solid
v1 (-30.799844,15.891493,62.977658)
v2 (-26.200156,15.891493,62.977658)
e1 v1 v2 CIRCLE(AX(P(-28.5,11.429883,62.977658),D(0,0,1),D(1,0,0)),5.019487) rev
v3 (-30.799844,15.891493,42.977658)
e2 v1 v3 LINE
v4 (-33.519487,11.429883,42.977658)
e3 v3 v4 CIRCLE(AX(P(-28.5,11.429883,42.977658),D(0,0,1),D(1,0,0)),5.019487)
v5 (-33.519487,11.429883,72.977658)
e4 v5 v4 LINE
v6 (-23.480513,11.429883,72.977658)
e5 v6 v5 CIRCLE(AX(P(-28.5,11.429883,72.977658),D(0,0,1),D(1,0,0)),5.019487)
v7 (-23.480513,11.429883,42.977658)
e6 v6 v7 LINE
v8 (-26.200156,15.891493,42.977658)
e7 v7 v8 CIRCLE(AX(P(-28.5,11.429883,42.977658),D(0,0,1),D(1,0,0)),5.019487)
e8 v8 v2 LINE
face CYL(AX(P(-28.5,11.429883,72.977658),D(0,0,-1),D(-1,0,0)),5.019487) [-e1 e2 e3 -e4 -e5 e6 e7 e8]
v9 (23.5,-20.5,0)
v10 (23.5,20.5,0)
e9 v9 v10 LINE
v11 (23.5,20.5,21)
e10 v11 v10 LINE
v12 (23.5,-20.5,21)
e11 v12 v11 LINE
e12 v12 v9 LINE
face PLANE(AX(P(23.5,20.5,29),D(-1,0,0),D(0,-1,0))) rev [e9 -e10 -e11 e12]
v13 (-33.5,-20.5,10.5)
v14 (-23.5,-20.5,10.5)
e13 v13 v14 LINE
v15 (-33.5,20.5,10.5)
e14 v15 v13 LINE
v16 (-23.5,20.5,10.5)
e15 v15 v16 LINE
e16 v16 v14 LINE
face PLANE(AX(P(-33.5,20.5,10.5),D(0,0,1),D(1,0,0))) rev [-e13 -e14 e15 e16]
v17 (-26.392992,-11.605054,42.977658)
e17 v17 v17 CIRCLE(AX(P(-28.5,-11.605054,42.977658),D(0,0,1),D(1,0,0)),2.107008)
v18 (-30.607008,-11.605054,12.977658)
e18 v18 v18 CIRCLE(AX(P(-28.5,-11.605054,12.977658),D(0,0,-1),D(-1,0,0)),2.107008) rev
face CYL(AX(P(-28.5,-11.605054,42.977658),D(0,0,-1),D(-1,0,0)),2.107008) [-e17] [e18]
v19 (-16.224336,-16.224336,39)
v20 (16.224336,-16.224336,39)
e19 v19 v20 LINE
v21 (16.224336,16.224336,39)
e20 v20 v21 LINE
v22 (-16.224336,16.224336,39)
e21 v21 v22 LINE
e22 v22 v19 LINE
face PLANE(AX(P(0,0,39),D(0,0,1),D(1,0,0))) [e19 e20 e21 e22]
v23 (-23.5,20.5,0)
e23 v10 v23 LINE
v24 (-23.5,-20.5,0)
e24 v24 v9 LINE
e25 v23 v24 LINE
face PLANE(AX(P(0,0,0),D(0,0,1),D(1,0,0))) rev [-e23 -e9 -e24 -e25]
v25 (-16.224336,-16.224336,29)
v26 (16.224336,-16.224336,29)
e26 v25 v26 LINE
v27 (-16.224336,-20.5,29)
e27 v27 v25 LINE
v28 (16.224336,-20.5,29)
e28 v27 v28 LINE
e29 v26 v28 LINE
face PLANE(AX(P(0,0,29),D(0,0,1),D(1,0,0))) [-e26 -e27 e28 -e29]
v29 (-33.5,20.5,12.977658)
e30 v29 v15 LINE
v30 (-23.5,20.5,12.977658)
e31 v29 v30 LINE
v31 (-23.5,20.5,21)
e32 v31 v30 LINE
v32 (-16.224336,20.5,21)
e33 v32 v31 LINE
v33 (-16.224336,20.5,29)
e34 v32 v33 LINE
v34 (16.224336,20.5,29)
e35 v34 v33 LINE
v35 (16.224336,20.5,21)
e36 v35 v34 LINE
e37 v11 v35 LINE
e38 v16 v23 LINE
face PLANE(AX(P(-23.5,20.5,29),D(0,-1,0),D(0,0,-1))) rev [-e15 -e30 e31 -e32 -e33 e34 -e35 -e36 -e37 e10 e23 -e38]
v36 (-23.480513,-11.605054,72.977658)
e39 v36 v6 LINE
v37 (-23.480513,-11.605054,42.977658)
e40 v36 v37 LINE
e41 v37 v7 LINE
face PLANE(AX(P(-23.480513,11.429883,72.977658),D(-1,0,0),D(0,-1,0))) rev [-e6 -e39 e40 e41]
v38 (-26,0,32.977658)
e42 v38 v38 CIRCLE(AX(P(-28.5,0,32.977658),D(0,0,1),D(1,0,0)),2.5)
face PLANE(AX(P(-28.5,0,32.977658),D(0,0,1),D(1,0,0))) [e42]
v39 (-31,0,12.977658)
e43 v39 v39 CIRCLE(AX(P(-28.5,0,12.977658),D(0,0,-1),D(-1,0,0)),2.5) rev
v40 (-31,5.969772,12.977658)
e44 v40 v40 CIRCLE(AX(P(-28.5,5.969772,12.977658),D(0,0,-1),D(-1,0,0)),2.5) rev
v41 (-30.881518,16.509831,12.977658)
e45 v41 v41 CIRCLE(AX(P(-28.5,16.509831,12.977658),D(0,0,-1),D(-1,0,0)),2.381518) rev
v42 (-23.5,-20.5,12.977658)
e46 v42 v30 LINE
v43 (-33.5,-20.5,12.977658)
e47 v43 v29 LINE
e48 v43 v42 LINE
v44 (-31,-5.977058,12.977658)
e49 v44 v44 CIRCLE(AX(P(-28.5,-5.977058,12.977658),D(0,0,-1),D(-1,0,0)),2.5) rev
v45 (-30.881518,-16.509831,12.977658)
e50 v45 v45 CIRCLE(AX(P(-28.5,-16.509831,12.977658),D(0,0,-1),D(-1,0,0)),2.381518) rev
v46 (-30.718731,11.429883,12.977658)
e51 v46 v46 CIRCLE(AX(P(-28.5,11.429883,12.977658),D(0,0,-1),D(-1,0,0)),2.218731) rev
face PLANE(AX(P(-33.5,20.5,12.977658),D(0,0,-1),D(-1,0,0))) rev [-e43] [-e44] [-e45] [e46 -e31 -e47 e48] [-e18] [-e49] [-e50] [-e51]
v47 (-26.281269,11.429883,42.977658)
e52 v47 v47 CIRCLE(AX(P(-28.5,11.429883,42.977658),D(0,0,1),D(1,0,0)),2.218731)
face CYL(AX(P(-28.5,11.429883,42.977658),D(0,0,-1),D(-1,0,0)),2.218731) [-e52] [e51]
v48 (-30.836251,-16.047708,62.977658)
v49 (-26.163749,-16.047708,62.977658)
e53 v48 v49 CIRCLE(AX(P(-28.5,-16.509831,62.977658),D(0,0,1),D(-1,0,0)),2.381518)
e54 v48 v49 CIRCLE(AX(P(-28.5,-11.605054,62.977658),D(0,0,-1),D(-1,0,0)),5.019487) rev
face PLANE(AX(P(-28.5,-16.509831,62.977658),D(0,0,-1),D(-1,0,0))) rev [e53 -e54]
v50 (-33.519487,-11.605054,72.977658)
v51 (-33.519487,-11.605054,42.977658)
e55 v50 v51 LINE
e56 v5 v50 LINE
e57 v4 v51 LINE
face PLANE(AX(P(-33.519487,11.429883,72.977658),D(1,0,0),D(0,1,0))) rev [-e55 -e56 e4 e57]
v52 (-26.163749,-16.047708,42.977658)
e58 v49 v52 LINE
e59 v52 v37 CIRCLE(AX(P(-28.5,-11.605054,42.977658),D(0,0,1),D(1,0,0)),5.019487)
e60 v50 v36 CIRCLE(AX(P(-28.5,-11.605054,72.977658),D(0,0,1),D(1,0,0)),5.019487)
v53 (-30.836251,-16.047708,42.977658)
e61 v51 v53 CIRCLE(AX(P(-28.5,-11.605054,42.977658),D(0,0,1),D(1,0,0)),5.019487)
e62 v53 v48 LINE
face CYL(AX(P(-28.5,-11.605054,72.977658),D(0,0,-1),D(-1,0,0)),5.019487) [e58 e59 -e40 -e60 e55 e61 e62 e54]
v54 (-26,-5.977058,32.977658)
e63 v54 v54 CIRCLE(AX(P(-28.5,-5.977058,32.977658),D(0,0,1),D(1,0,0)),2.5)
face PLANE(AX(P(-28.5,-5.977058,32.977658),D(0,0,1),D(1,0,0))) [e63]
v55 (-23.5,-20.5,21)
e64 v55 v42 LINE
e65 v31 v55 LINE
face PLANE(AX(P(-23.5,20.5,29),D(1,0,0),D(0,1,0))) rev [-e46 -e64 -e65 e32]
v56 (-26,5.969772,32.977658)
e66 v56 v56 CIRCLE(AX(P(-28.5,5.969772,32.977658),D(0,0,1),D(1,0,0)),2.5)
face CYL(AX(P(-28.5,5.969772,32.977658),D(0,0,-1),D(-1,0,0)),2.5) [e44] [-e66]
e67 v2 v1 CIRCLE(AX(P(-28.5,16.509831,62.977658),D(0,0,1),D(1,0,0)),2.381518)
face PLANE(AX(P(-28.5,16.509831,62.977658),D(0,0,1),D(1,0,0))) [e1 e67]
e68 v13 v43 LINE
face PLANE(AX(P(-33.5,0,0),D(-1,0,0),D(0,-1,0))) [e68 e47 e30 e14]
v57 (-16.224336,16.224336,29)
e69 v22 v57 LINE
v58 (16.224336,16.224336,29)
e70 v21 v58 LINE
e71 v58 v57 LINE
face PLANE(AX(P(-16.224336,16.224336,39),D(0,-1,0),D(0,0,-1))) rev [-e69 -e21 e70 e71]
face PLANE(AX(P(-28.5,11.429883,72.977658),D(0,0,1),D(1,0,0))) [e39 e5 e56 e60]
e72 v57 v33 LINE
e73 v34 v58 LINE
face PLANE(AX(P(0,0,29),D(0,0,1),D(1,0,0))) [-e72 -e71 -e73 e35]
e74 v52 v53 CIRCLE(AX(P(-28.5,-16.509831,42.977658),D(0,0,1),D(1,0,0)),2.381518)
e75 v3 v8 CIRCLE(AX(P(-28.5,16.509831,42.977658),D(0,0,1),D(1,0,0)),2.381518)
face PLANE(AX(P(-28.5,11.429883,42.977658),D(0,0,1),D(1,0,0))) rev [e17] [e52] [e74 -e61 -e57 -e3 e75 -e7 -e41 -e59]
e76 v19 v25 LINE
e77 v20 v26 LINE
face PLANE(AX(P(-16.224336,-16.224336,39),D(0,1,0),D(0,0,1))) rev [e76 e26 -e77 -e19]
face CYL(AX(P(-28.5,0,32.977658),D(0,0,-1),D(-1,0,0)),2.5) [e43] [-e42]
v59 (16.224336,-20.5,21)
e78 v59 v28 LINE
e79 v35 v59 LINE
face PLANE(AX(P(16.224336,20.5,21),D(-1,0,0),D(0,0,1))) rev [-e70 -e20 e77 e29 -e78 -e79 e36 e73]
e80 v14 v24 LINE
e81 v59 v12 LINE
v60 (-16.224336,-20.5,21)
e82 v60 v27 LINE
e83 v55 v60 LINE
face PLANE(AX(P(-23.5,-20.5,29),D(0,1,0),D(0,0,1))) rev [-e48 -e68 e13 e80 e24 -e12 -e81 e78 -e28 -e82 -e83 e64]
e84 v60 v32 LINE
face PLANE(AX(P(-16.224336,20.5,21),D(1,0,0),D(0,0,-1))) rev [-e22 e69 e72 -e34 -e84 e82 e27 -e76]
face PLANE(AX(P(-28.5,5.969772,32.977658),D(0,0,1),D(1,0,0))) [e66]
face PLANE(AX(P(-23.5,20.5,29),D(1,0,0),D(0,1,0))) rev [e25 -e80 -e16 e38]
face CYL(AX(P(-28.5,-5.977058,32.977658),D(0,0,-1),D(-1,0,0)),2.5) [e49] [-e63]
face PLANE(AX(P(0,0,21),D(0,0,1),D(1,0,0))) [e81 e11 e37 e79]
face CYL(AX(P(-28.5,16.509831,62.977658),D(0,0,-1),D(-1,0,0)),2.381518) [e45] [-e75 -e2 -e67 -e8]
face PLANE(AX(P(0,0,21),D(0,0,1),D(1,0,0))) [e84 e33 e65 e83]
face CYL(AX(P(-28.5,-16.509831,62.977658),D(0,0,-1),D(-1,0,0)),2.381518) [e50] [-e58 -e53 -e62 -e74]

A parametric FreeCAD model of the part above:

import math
import FreeCAD as App
import Part
import Sketcher
from FreeCAD import Vector
Q = App.Units.Quantity


def add_polygon(sketch, points):
    """Adds a closed chain of lines whose ends are joined by coincident constraints."""
    first, n = sketch.GeometryCount, len(points)
    for a, b in zip(points, points[1:] + points[:1]):
        sketch.addGeometry(Part.LineSegment(App.Vector(*a, 0), App.Vector(*b, 0)), False)
    for i in range(n):
        sketch.addConstraint(Sketcher.Constraint("Coincident", first + i, 2, first + (i + 1) % n, 1))

doc = App.newDocument("Part")
body = doc.addObject("PartDesign::Body", "Body")

sketch1 = body.newObject("Sketcher::SketchObject", "Sketch")
sketch1.AttachmentSupport = (doc.getObject("XY_Plane"), [""])
sketch1.MapMode = "FlatFace"
add_polygon(sketch1, [(-24, 20), (-24, -20), (24, -20), (24, 20)])
sketch1.addConstraint([
    Sketcher.Constraint("Vertical", 0),
    Sketcher.Constraint("Horizontal", 1),
    Sketcher.Constraint("Vertical", 2),
    Sketcher.Constraint("Horizontal", 3),
    Sketcher.Constraint("Symmetric", 0, 2, 2, 2, -1, 1),
    Sketcher.Constraint("DistanceX", 1, 1, 1, 2, Q("47 mm")),
    Sketcher.Constraint("DistanceY", 0, 2, 0, 1, Q("41 mm")),
])
pad1 = body.newObject("PartDesign::Pad", "Pad")
pad1.Profile = sketch1
pad1.Length = 29

sketch2 = body.newObject("Sketcher::SketchObject", "Sketch001")
sketch2.AttachmentSupport = (doc.getObject("XY_Plane"), [""])
sketch2.MapMode = "FlatFace"
sketch2.AttachmentOffset = App.Placement(Vector(0, 0, 29), App.Rotation())
add_polygon(sketch2, [(-24, 20), (-24, -20), (-16, -20), (-16, 20)])
add_polygon(sketch2, [(16, 20), (16, -20), (24, -20), (24, 20)])
sketch2.addConstraint([
    Sketcher.Constraint("Vertical", 0),
    Sketcher.Constraint("Horizontal", 1),
    Sketcher.Constraint("Vertical", 2),
    Sketcher.Constraint("Horizontal", 3),
    Sketcher.Constraint("Vertical", 4),
    Sketcher.Constraint("Horizontal", 5),
    Sketcher.Constraint("Vertical", 6),
    Sketcher.Constraint("Horizontal", 7),
    Sketcher.Constraint("Symmetric", 2, 2, 4, 2, -1, 1),
    Sketcher.Constraint("Symmetric", 0, 2, 6, 2, -1, 1),
    Sketcher.Constraint("Horizontal", 1, 2, 4, 2),
    Sketcher.Constraint("DistanceY", 0, 2, 0, 1, Q("41 mm")),
    Sketcher.Constraint("DistanceX", 0, 2, 5, 2, Q("47 mm")),
    Sketcher.Constraint("DistanceX", 1, 1, 1, 2, Q("7.275664 mm")),
])
pocket1 = body.newObject("PartDesign::Pocket", "Pocket")
pocket1.Profile = sketch2
pocket1.Length = 8

sketch3 = body.newObject("Sketcher::SketchObject", "Sketch002")
sketch3.AttachmentSupport = (doc.getObject("XY_Plane"), [""])
sketch3.MapMode = "FlatFace"
sketch3.AttachmentOffset = App.Placement(Vector(0, 0, 29), App.Rotation())
add_polygon(sketch3, [(-16, 16), (-16, -16), (16, -16), (16, 16)])
sketch3.addConstraint([
    Sketcher.Constraint("Vertical", 0),
    Sketcher.Constraint("Horizontal", 1),
    Sketcher.Constraint("Vertical", 2),
    Sketcher.Constraint("Horizontal", 3),
    Sketcher.Constraint("Symmetric", 0, 2, 2, 2, -1, 1),
    Sketcher.Constraint("Equal", 3, 0),
    Sketcher.Constraint("DistanceX", 1, 1, 1, 2, Q("32.448672 mm")),
])
pad2 = body.newObject("PartDesign::Pad", "Pad001")
pad2.Profile = sketch3
pad2.Length = 10

sketch4 = body.newObject("Sketcher::SketchObject", "Sketch003")
sketch4.AttachmentSupport = (doc.getObject("YZ_Plane"), [""])
sketch4.MapMode = "FlatFace"
sketch4.AttachmentOffset = App.Placement(Vector(0, 0, -23.5), App.Rotation())
add_polygon(sketch4, [(20.5, 10.5), (-20.5, 10.5), (-20.5, 13), (20.5, 13)])
sketch4.addConstraint([
    Sketcher.Constraint("Horizontal", 0),
    Sketcher.Constraint("Vertical", 1),
    Sketcher.Constraint("Horizontal", 2),
    Sketcher.Constraint("Vertical", 3),
    Sketcher.Constraint("DistanceX", 0, 2, 0, 1, Q("41 mm")),
    Sketcher.Constraint("DistanceX", 0, 2, -1, 1, Q("20.5 mm")),
    Sketcher.Constraint("DistanceY", -1, 1, 0, 2, Q("10.5 mm")),
    Sketcher.Constraint("DistanceY", 1, 1, 1, 2, Q("2.477658 mm")),
])
pad3 = body.newObject("PartDesign::Pad", "Pad002")
pad3.Profile = sketch4
pad3.Length = 10
pad3.Reversed = True

sketch5 = body.newObject("Sketcher::SketchObject", "Sketch004")
sketch5.AttachmentSupport = (doc.getObject("XY_Plane"), [""])
sketch5.MapMode = "FlatFace"
sketch5.AttachmentOffset = App.Placement(Vector(0, 0, 12.977658), App.Rotation())
sketch5.addGeometry([
    Part.Circle(Vector(-28.5, 16.5, 0), Vector(0, 0, 1), 2.4),
    Part.Circle(Vector(-28.5, -16.5, 0), Vector(0, 0, 1), 2.4),
], False)
sketch5.addConstraint([
    Sketcher.Constraint("Equal", 0, 1),
    Sketcher.Constraint("Symmetric", 0, 3, 1, 3, -1),
    Sketcher.Constraint("DistanceX", 0, 3, -1, 1, Q("28.5 mm")),
    Sketcher.Constraint("Diameter", 0, Q("4.763035 mm")),
    Sketcher.Constraint("DistanceY", -1, 1, 0, 3, Q("16.509831 mm")),
])
pad4 = body.newObject("PartDesign::Pad", "Pad003")
pad4.Profile = sketch5
pad4.Length = 50

sketch6 = body.newObject("Sketcher::SketchObject", "Sketch005")
sketch6.AttachmentSupport = (doc.getObject("XY_Plane"), [""])
sketch6.MapMode = "FlatFace"
sketch6.AttachmentOffset = App.Placement(Vector(0, 0, 12.977658), App.Rotation())
sketch6.addGeometry([
    Part.Circle(Vector(-28.5, 6, 0), Vector(0, 0, 1), 2.5),
    Part.Circle(Vector(-28.5, 0, 0), Vector(0, 0, 1), 2.5),
    Part.Circle(Vector(-28.5, -6, 0), Vector(0, 0, 1), 2.5),
], False)
sketch6.addConstraint([
    Sketcher.Constraint("Equal", 0, 1),
    Sketcher.Constraint("Equal", 1, 2),
    Sketcher.Constraint("PointOnObject", 1, 3, -1),
    Sketcher.Constraint("Vertical", 0, 3, 1, 3),
    Sketcher.Constraint("Vertical", 1, 3, 2, 3),
    Sketcher.Constraint("Diameter", 0, Q("5 mm")),
    Sketcher.Constraint("DistanceX", 0, 3, -1, 1, Q("28.5 mm")),
    Sketcher.Constraint("DistanceY", -1, 1, 0, 3, Q("5.969772 mm")),
    Sketcher.Constraint("DistanceY", 2, 3, 0, 3, Q("11.946829 mm")),
])
pad5 = body.newObject("PartDesign::Pad", "Pad004")
pad5.Profile = sketch6
pad5.Length = 20

sketch7 = body.newObject("Sketcher::SketchObject", "Sketch006")
sketch7.AttachmentSupport = (doc.getObject("XY_Plane"), [""])
sketch7.MapMode = "FlatFace"
sketch7.AttachmentOffset = App.Placement(Vector(0, 0, 12.977658), App.Rotation())
sketch7.addGeometry([
    Part.Circle(Vector(-28.5, 11.4, 0), Vector(0, 0, 1), 2.2),
    Part.Circle(Vector(-28.5, -11.6, 0), Vector(0, 0, 1), 2.1),
], False)
sketch7.addConstraint([
    Sketcher.Constraint("Vertical", 0, 3, 1, 3),
    Sketcher.Constraint("DistanceX", 0, 3, -1, 1, Q("28.5 mm")),
    Sketcher.Constraint("Diameter", 0, Q("4.437463 mm")),
    Sketcher.Constraint("Diameter", 1, Q("4.214017 mm")),
    Sketcher.Constraint("DistanceY", -1, 1, 0, 3, Q("11.429883 mm")),
    Sketcher.Constraint("DistanceY", 1, 3, -1, 1, Q("11.605054 mm")),
])
pad6 = body.newObject("PartDesign::Pad", "Pad005")
pad6.Profile = sketch7
pad6.Length = 30

sketch8 = body.newObject("Sketcher::SketchObject", "Sketch007")
sketch8.AttachmentSupport = (doc.getObject("XY_Plane"), [""])
sketch8.MapMode = "FlatFace"
sketch8.AttachmentOffset = App.Placement(Vector(0, 0, 42.977658), App.Rotation())
sketch8.addGeometry([
    Part.LineSegment(Vector(-23, -12, 0), Vector(-23, 11, 0)),
    Part.ArcOfCircle(Part.Circle(Vector(-28, 11, 0), Vector(0, 0, 1), 5), math.radians(0), math.radians(180)),
    Part.LineSegment(Vector(-34, 11, 0), Vector(-34, -12, 0)),
    Part.ArcOfCircle(Part.Circle(Vector(-28, -12, 0), Vector(0, 0, 1), 5), math.radians(180), math.radians(360)),
], False)
sketch8.addConstraint([
    Sketcher.Constraint("Tangent", 0, 2, 1, 1),
    Sketcher.Constraint("Tangent", 1, 2, 2, 1),
    Sketcher.Constraint("Tangent", 2, 2, 3, 1),
    Sketcher.Constraint("Tangent", 3, 2, 0, 1),
    Sketcher.Constraint("Vertical", 0),
    Sketcher.Constraint("Vertical", 2),
    Sketcher.Constraint("DistanceX", 1, 3, -1, 1, Q("28.5 mm")),
    Sketcher.Constraint("Radius", 1, Q("5.019487 mm")),
    Sketcher.Constraint("DistanceY", 0, 1, 0, 2, Q("23.034937 mm")),
    Sketcher.Constraint("DistanceY", -1, 1, 1, 3, Q("11.429883 mm")),
])
pad7 = body.newObject("PartDesign::Pad", "Pad006")
pad7.Profile = sketch8
pad7.Length = 30

doc.recompute()
